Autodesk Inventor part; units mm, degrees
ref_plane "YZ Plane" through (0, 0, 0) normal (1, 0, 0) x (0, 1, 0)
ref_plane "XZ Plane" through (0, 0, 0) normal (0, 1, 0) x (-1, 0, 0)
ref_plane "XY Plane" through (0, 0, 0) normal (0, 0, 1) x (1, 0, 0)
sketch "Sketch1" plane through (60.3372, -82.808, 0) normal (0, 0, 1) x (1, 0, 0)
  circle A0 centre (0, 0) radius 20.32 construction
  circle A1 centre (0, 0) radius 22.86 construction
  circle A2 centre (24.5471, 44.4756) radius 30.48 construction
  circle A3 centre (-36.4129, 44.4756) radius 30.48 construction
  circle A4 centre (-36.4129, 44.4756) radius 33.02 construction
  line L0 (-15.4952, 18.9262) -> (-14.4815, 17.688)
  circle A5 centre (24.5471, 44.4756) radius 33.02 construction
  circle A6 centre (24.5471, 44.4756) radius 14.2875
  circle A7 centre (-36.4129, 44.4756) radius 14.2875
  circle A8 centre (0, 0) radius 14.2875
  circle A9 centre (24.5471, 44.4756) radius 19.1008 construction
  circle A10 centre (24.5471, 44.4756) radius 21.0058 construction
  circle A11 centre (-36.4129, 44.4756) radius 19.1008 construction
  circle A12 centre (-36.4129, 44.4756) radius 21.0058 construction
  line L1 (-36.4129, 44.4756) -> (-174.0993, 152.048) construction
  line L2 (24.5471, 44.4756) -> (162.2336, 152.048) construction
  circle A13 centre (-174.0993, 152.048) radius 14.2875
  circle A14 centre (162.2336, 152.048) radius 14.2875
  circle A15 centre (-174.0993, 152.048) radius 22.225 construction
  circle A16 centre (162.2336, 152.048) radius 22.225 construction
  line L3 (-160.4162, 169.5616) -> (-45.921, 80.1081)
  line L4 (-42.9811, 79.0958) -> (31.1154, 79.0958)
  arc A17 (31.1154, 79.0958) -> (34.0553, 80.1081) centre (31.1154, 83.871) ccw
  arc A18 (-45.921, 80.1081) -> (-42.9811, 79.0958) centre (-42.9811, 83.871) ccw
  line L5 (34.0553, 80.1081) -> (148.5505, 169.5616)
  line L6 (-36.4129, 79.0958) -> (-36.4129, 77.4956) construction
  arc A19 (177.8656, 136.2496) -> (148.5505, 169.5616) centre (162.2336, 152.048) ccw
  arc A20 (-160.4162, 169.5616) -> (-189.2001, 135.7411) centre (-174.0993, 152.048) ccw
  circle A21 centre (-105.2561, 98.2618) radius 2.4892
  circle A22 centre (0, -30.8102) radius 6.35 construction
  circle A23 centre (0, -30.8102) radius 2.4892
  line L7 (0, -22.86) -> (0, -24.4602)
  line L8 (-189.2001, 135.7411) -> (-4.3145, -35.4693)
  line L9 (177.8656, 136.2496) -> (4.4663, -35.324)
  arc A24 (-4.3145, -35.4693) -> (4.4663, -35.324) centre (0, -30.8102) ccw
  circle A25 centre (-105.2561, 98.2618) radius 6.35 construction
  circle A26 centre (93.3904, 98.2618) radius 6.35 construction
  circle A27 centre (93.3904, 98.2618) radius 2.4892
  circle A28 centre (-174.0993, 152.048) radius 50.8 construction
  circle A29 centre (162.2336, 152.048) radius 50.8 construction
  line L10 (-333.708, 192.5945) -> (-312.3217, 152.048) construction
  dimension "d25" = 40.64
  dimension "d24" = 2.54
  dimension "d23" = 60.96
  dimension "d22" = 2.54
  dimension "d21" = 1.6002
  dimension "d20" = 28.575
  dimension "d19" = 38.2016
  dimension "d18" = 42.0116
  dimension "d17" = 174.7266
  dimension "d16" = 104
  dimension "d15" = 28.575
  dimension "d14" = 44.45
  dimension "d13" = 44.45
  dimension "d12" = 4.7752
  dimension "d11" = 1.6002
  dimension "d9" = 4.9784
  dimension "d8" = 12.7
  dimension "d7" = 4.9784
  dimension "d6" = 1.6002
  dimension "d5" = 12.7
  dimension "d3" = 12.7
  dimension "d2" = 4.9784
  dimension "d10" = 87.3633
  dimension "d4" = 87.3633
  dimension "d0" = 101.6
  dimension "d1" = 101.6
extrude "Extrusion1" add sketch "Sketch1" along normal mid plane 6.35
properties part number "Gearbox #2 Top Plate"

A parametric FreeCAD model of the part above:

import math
import FreeCAD as App
import Part
import Sketcher
from FreeCAD import Vector
Q = App.Units.Quantity

doc = App.newDocument("Part")
body = doc.addObject("PartDesign::Body", "Body")

# Sketch on XY plane
sketch1 = body.newObject("Sketcher::SketchObject", "Sketch")
sketch1.AttachmentSupport = (doc.getObject("XY_Plane"), [""])
sketch1.MapMode = "FlatFace"
sketch1.addGeometry(Part.LineSegment(Vector(14.4, -2.7, 0), Vector(-100.1, 86.8, 0)), False)
sketch1.addGeometry(Part.ArcOfCircle(Part.Circle(Vector(-113.8, 69.2, 0), Vector(0, 0, 1), 22.2), math.radians(52), math.radians(227)), False)
sketch1.addGeometry(Part.LineSegment(Vector(-128.9, 52.9, 0), Vector(56, -118.3, 0)), False)
sketch1.addGeometry(Part.ArcOfCircle(Part.Circle(Vector(60.3, -113.6, 0), Vector(0, 0, 1), 6.3), math.radians(-133), math.radians(-45)), False)
sketch1.addGeometry(Part.LineSegment(Vector(64.8, -118.1, 0), Vector(238.2, 53.4, 0)), False)
sketch1.addGeometry(Part.ArcOfCircle(Part.Circle(Vector(222.6, 69.2, 0), Vector(0, 0, 1), 22.2), math.radians(-45), math.radians(128)), False)
sketch1.addGeometry(Part.LineSegment(Vector(208.9, 86.8, 0), Vector(94.4, -2.7, 0)), False)
sketch1.addGeometry(Part.ArcOfCircle(Part.Circle(Vector(91.5, 1.1, 0), Vector(0, 0, 1), 4.8), math.radians(-90), math.radians(-52)), False)
sketch1.addGeometry(Part.LineSegment(Vector(91.5, -3.7, 0), Vector(17.4, -3.7, 0)), False)
sketch1.addGeometry(Part.ArcOfCircle(Part.Circle(Vector(17.4, 1.1, 0), Vector(0, 0, 1), 4.8), math.radians(-128), math.radians(-90)), False)
sketch1.addGeometry(Part.Circle(Vector(23.9, -38.3, 0), Vector(0, 0, 1), 14.3), False)
sketch1.addGeometry(Part.Circle(Vector(60.3, -113.6, 0), Vector(0, 0, 1), 2.5), False)
sketch1.addGeometry(Part.Circle(Vector(60.3, -82.8, 0), Vector(0, 0, 1), 14.3), False)
sketch1.addGeometry(Part.Circle(Vector(84.9, -38.3, 0), Vector(0, 0, 1), 14.3), False)
sketch1.addGeometry(Part.Circle(Vector(-44.9, 15.5, 0), Vector(0, 0, 1), 2.5), False)
sketch1.addGeometry(Part.Circle(Vector(-113.8, 69.2, 0), Vector(0, 0, 1), 14.3), False)
sketch1.addGeometry(Part.Circle(Vector(153.7, 15.5, 0), Vector(0, 0, 1), 2.5), False)
sketch1.addGeometry(Part.Circle(Vector(222.6, 69.2, 0), Vector(0, 0, 1), 14.3), False)
sketch1.addConstraint(Sketcher.Constraint("Tangent", 0, 2, 1, 1))
sketch1.addConstraint(Sketcher.Constraint("Tangent", 1, 2, 2, 1))
sketch1.addConstraint(Sketcher.Constraint("Tangent", 2, 2, 3, 1))
sketch1.addConstraint(Sketcher.Constraint("Tangent", 3, 2, 4, 1))
sketch1.addConstraint(Sketcher.Constraint("Tangent", 4, 2, 5, 1))
sketch1.addConstraint(Sketcher.Constraint("Tangent", 5, 2, 6, 1))
sketch1.addConstraint(Sketcher.Constraint("Tangent", 6, 2, 7, 2))
sketch1.addConstraint(Sketcher.Constraint("Tangent", 7, 1, 8, 1))
sketch1.addConstraint(Sketcher.Constraint("Tangent", 8, 2, 9, 2))
sketch1.addConstraint(Sketcher.Constraint("Tangent", 9, 1, 0, 1))
sketch1.addConstraint(Sketcher.Constraint("Horizontal", 8))
sketch1.addConstraint(Sketcher.Constraint("Coincident", 11, 3, 3, 3))
sketch1.addConstraint(Sketcher.Constraint("Coincident", 15, 3, 1, 3))
sketch1.addConstraint(Sketcher.Constraint("Coincident", 17, 3, 5, 3))
sketch1.addConstraint(Sketcher.Constraint("Equal", 1, 5))
sketch1.addConstraint(Sketcher.Constraint("Equal", 7, 9))
sketch1.addConstraint(Sketcher.Constraint("Equal", 10, 12))
sketch1.addConstraint(Sketcher.Constraint("Equal", 12, 13))
sketch1.addConstraint(Sketcher.Constraint("Equal", 11, 14))
sketch1.addConstraint(Sketcher.Constraint("Equal", 13, 15))
sketch1.addConstraint(Sketcher.Constraint("Equal", 14, 16))
sketch1.addConstraint(Sketcher.Constraint("Equal", 15, 17))
sketch1.addConstraint(Sketcher.Constraint("Horizontal", 1, 3, 5, 3))
sketch1.addConstraint(Sketcher.Constraint("Horizontal", 10, 3, 13, 3))
sketch1.addConstraint(Sketcher.Constraint("Horizontal", 14, 3, 16, 3))
sketch1.addConstraint(Sketcher.Constraint("Horizontal", 0, 2, 5, 2))
sketch1.addConstraint(Sketcher.Constraint("Vertical", 11, 3, 12, 3))
sketch1.addConstraint(Sketcher.Constraint("Radius", 3, Q("0.25 in")))
sketch1.addConstraint(Sketcher.Constraint("Diameter", 10, Q("1.125 in")))
sketch1.addConstraint(Sketcher.Constraint("Diameter", 11, Q("0.196 in")))
sketch1.addConstraint(Sketcher.Constraint("Radius", 1, Q("0.875 in")))
sketch1.addConstraint(Sketcher.Constraint("Radius", 7, Q("0.188 in")))
sketch1.addConstraint(Sketcher.Constraint("DistanceX", 10, 3, 13, 3, Q("2.4 in")))
sketch1.addConstraint(Sketcher.Constraint("Angle", 0, Q("142 deg")))
sketch1.addConstraint(Sketcher.Constraint("Angle", 2, Q("-42.8007 deg")))
sketch1.addConstraint(Sketcher.Constraint("DistanceY", -1, 1, 4, 2, Q("2.104 in")))
sketch1.addConstraint(Sketcher.Constraint("DistanceY", 3, 3, 7, 3, Q("4.515 in")))
sketch1.addConstraint(Sketcher.Constraint("DistanceY", 10, 3, 9, 3, Q("1.551 in")))
sketch1.addConstraint(Sketcher.Constraint("DistanceY", 3, 3, 12, 3, Q("1.213 in")))
sketch1.addConstraint(Sketcher.Constraint("Distance", 2, Q("9.9206 in")))
sketch1.addConstraint(Sketcher.Constraint("DistanceX", 8, 2, 8, 1, 74.0965))
sketch1.addConstraint(Sketcher.Constraint("DistanceX", -1, 1, 7, 3, Q("3.6005 in")))
sketch1.addConstraint(Sketcher.Constraint("DistanceX", -1, 1, 10, 3, Q("0.9419 in")))
sketch1.addConstraint(Sketcher.Constraint("DistanceX", 16, 3, 4, 2, Q("3.3258 in")))
sketch1.addConstraint(Sketcher.Constraint("DistanceX", 14, 3, -1, 1, 44.919))
sketch1.addConstraint(Sketcher.Constraint("DistanceY", -1, 1, 14, 3, 15.4538))
pad1 = body.newObject("PartDesign::Pad", "Pad")
pad1.Profile = sketch1
pad1.Length = Q("0.25 in")
pad1.Midplane = True

doc.recompute()
